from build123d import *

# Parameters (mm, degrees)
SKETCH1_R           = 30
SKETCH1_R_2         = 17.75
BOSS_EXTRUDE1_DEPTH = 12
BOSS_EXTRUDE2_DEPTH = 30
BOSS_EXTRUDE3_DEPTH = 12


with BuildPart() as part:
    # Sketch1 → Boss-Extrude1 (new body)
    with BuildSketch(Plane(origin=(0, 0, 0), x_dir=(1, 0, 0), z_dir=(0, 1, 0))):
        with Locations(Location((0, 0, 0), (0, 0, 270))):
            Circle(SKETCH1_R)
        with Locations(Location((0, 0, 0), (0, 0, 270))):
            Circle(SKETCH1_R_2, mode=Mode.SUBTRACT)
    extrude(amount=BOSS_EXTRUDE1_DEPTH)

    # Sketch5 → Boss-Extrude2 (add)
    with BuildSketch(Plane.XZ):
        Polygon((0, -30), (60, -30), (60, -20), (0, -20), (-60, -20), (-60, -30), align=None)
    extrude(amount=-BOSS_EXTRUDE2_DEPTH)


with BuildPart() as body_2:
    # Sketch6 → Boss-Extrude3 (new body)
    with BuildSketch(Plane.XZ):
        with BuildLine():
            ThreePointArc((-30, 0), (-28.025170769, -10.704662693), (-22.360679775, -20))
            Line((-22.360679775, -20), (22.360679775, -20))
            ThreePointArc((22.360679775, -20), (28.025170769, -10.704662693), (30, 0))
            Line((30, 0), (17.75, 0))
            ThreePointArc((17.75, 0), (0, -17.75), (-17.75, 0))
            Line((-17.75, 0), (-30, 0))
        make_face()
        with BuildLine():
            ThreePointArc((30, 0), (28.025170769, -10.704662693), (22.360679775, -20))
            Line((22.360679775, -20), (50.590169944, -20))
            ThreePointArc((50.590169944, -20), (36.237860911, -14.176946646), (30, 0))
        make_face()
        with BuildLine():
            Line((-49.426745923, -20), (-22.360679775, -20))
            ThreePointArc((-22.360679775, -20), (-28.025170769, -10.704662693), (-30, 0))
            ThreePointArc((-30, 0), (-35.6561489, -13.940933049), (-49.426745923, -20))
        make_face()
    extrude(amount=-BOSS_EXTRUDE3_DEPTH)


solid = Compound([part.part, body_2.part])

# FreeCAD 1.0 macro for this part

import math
import FreeCAD as App
import Part
import Sketcher
from FreeCAD import Vector
Q = App.Units.Quantity


def add_polygon(sketch, points):
    """Adds a closed chain of lines whose ends are joined by coincident constraints."""
    first, n = sketch.GeometryCount, len(points)
    for a, b in zip(points, points[1:] + points[:1]):
        sketch.addGeometry(Part.LineSegment(App.Vector(*a, 0), App.Vector(*b, 0)), False)
    for i in range(n):
        sketch.addConstraint(Sketcher.Constraint("Coincident", first + i, 2, first + (i + 1) % n, 1))

doc = App.newDocument("Part")
body = doc.addObject("PartDesign::Body", "Body")

# Sketch on XZ plane
sketch1 = doc.addObject("Sketcher::SketchObject", "Sketch")
body.addObject(sketch1)
sketch1.AttachmentSupport = (doc.XZ_Plane, [""])
sketch1.MapMode = "FlatFace"
sketch1.addGeometry([
    Part.Circle(Vector(0, 0, 0), Vector(0, 0, 1), 30),
    Part.Circle(Vector(0, 0, 0), Vector(0, 0, 1), 18),
], False)
sketch1.addConstraint([
    Sketcher.Constraint("Coincident", 0, 3, -1, 1),
    Sketcher.Constraint("Coincident", 1, 3, -1, 1),
    Sketcher.Constraint("Diameter", 0, Q("60 mm")),
    Sketcher.Constraint("Diameter", 1, Q("35.5 mm")),
])
pad1 = doc.addObject("PartDesign::Pad", "Pad")
body.addObject(pad1)
pad1.Profile = sketch1
pad1.Length = 12
pad1.Reversed = True

# Sketch on XZ plane
sketch2 = doc.addObject("Sketcher::SketchObject", "Sketch001")
body.addObject(sketch2)
sketch2.AttachmentSupport = (doc.XZ_Plane, [""])
sketch2.MapMode = "FlatFace"
add_polygon(sketch2, [(60, -30), (60, -20), (-60, -20), (-60, -30)])  # lines 0-3
sketch2.addConstraint([
    Sketcher.Constraint("Vertical", 0),
    Sketcher.Constraint("Horizontal", 1),
    Sketcher.Constraint("Vertical", 2),
    Sketcher.Constraint("Horizontal", 3),
    Sketcher.Constraint("DistanceX", 1, 2, 1, 1, Q("120 mm")),
    Sketcher.Constraint("DistanceY", 0, 1, 0, 2, Q("10 mm")),
    Sketcher.Constraint("DistanceX", -1, 1, 0, 2, Q("60 mm")),
    Sketcher.Constraint("DistanceY", 0, 2, -1, 1, Q("20 mm")),
])
pad2 = doc.addObject("PartDesign::Pad", "Pad001")
body.addObject(pad2)
pad2.Profile = sketch2
pad2.Length = 30
pad2.Reversed = True
body2 = doc.addObject("PartDesign::Body", "Body001")

# Sketch on XZ plane
sketch3 = doc.addObject("Sketcher::SketchObject", "Sketch002")
body2.addObject(sketch3)
sketch3.AttachmentSupport = (doc.getObject("XZ_Plane001"), [""])
sketch3.MapMode = "FlatFace"
sketch3.addGeometry([
    Part.ArcOfCircle(Part.Circle(Vector(51, 1, 0), Vector(0, 0, 1), 21), math.radians(-178), math.radians(-90)),  # 0
    Part.LineSegment(Vector(30, 0, 0), Vector(18, 0, 0)),  # 1
    Part.ArcOfCircle(Part.Circle(Vector(0, 0, 0), Vector(0, 0, 1), 18), math.radians(180), math.radians(360)),  # 2
    Part.LineSegment(Vector(-18, 0, 0), Vector(-30, 0, 0)),  # 3
    Part.ArcOfCircle(Part.Circle(Vector(-50, 0, 0), Vector(0, 0, 1), 20), math.radians(-88), math.radians(0)),  # 4
    Part.LineSegment(Vector(-49, -20, 0), Vector(51, -20, 0)),  # 5
], False)
sketch3.addConstraint([
    Sketcher.Constraint("Coincident", 0, 1, 1, 1),
    Sketcher.Constraint("Coincident", 1, 2, 2, 2),
    Sketcher.Constraint("Coincident", 2, 1, 3, 1),
    Sketcher.Constraint("Coincident", 3, 2, 4, 2),
    Sketcher.Constraint("Coincident", 4, 1, 5, 1),
    Sketcher.Constraint("Tangent", 5, 2, 0, 2),
    Sketcher.Constraint("Horizontal", 1),
    Sketcher.Constraint("Horizontal", 3),
    Sketcher.Constraint("Horizontal", 5),
    Sketcher.Constraint("Coincident", 2, 3, -1, 1),
    Sketcher.Constraint("Symmetric", 0, 1, 3, 2, -1, 1),
    Sketcher.Constraint("PointOnObject", 4, 3, -1),
    Sketcher.Constraint("PointOnObject", 0, 1, -1),
    Sketcher.Constraint("Radius", 2, Q("17.75 mm")),
    Sketcher.Constraint("DistanceX", -1, 1, 0, 1, Q("30 mm")),
    Sketcher.Constraint("DistanceY", 4, 1, -1, 1, Q("20 mm")),
    Sketcher.Constraint("Radius", 0, Q("20.598877 mm")),
    Sketcher.Constraint("Radius", 4, Q("20.008458 mm")),
])
pad3 = doc.addObject("PartDesign::Pad", "Pad002")
body2.addObject(pad3)
pad3.Profile = sketch3
pad3.Length = 12
pad3.Reversed = True

doc.recompute()
